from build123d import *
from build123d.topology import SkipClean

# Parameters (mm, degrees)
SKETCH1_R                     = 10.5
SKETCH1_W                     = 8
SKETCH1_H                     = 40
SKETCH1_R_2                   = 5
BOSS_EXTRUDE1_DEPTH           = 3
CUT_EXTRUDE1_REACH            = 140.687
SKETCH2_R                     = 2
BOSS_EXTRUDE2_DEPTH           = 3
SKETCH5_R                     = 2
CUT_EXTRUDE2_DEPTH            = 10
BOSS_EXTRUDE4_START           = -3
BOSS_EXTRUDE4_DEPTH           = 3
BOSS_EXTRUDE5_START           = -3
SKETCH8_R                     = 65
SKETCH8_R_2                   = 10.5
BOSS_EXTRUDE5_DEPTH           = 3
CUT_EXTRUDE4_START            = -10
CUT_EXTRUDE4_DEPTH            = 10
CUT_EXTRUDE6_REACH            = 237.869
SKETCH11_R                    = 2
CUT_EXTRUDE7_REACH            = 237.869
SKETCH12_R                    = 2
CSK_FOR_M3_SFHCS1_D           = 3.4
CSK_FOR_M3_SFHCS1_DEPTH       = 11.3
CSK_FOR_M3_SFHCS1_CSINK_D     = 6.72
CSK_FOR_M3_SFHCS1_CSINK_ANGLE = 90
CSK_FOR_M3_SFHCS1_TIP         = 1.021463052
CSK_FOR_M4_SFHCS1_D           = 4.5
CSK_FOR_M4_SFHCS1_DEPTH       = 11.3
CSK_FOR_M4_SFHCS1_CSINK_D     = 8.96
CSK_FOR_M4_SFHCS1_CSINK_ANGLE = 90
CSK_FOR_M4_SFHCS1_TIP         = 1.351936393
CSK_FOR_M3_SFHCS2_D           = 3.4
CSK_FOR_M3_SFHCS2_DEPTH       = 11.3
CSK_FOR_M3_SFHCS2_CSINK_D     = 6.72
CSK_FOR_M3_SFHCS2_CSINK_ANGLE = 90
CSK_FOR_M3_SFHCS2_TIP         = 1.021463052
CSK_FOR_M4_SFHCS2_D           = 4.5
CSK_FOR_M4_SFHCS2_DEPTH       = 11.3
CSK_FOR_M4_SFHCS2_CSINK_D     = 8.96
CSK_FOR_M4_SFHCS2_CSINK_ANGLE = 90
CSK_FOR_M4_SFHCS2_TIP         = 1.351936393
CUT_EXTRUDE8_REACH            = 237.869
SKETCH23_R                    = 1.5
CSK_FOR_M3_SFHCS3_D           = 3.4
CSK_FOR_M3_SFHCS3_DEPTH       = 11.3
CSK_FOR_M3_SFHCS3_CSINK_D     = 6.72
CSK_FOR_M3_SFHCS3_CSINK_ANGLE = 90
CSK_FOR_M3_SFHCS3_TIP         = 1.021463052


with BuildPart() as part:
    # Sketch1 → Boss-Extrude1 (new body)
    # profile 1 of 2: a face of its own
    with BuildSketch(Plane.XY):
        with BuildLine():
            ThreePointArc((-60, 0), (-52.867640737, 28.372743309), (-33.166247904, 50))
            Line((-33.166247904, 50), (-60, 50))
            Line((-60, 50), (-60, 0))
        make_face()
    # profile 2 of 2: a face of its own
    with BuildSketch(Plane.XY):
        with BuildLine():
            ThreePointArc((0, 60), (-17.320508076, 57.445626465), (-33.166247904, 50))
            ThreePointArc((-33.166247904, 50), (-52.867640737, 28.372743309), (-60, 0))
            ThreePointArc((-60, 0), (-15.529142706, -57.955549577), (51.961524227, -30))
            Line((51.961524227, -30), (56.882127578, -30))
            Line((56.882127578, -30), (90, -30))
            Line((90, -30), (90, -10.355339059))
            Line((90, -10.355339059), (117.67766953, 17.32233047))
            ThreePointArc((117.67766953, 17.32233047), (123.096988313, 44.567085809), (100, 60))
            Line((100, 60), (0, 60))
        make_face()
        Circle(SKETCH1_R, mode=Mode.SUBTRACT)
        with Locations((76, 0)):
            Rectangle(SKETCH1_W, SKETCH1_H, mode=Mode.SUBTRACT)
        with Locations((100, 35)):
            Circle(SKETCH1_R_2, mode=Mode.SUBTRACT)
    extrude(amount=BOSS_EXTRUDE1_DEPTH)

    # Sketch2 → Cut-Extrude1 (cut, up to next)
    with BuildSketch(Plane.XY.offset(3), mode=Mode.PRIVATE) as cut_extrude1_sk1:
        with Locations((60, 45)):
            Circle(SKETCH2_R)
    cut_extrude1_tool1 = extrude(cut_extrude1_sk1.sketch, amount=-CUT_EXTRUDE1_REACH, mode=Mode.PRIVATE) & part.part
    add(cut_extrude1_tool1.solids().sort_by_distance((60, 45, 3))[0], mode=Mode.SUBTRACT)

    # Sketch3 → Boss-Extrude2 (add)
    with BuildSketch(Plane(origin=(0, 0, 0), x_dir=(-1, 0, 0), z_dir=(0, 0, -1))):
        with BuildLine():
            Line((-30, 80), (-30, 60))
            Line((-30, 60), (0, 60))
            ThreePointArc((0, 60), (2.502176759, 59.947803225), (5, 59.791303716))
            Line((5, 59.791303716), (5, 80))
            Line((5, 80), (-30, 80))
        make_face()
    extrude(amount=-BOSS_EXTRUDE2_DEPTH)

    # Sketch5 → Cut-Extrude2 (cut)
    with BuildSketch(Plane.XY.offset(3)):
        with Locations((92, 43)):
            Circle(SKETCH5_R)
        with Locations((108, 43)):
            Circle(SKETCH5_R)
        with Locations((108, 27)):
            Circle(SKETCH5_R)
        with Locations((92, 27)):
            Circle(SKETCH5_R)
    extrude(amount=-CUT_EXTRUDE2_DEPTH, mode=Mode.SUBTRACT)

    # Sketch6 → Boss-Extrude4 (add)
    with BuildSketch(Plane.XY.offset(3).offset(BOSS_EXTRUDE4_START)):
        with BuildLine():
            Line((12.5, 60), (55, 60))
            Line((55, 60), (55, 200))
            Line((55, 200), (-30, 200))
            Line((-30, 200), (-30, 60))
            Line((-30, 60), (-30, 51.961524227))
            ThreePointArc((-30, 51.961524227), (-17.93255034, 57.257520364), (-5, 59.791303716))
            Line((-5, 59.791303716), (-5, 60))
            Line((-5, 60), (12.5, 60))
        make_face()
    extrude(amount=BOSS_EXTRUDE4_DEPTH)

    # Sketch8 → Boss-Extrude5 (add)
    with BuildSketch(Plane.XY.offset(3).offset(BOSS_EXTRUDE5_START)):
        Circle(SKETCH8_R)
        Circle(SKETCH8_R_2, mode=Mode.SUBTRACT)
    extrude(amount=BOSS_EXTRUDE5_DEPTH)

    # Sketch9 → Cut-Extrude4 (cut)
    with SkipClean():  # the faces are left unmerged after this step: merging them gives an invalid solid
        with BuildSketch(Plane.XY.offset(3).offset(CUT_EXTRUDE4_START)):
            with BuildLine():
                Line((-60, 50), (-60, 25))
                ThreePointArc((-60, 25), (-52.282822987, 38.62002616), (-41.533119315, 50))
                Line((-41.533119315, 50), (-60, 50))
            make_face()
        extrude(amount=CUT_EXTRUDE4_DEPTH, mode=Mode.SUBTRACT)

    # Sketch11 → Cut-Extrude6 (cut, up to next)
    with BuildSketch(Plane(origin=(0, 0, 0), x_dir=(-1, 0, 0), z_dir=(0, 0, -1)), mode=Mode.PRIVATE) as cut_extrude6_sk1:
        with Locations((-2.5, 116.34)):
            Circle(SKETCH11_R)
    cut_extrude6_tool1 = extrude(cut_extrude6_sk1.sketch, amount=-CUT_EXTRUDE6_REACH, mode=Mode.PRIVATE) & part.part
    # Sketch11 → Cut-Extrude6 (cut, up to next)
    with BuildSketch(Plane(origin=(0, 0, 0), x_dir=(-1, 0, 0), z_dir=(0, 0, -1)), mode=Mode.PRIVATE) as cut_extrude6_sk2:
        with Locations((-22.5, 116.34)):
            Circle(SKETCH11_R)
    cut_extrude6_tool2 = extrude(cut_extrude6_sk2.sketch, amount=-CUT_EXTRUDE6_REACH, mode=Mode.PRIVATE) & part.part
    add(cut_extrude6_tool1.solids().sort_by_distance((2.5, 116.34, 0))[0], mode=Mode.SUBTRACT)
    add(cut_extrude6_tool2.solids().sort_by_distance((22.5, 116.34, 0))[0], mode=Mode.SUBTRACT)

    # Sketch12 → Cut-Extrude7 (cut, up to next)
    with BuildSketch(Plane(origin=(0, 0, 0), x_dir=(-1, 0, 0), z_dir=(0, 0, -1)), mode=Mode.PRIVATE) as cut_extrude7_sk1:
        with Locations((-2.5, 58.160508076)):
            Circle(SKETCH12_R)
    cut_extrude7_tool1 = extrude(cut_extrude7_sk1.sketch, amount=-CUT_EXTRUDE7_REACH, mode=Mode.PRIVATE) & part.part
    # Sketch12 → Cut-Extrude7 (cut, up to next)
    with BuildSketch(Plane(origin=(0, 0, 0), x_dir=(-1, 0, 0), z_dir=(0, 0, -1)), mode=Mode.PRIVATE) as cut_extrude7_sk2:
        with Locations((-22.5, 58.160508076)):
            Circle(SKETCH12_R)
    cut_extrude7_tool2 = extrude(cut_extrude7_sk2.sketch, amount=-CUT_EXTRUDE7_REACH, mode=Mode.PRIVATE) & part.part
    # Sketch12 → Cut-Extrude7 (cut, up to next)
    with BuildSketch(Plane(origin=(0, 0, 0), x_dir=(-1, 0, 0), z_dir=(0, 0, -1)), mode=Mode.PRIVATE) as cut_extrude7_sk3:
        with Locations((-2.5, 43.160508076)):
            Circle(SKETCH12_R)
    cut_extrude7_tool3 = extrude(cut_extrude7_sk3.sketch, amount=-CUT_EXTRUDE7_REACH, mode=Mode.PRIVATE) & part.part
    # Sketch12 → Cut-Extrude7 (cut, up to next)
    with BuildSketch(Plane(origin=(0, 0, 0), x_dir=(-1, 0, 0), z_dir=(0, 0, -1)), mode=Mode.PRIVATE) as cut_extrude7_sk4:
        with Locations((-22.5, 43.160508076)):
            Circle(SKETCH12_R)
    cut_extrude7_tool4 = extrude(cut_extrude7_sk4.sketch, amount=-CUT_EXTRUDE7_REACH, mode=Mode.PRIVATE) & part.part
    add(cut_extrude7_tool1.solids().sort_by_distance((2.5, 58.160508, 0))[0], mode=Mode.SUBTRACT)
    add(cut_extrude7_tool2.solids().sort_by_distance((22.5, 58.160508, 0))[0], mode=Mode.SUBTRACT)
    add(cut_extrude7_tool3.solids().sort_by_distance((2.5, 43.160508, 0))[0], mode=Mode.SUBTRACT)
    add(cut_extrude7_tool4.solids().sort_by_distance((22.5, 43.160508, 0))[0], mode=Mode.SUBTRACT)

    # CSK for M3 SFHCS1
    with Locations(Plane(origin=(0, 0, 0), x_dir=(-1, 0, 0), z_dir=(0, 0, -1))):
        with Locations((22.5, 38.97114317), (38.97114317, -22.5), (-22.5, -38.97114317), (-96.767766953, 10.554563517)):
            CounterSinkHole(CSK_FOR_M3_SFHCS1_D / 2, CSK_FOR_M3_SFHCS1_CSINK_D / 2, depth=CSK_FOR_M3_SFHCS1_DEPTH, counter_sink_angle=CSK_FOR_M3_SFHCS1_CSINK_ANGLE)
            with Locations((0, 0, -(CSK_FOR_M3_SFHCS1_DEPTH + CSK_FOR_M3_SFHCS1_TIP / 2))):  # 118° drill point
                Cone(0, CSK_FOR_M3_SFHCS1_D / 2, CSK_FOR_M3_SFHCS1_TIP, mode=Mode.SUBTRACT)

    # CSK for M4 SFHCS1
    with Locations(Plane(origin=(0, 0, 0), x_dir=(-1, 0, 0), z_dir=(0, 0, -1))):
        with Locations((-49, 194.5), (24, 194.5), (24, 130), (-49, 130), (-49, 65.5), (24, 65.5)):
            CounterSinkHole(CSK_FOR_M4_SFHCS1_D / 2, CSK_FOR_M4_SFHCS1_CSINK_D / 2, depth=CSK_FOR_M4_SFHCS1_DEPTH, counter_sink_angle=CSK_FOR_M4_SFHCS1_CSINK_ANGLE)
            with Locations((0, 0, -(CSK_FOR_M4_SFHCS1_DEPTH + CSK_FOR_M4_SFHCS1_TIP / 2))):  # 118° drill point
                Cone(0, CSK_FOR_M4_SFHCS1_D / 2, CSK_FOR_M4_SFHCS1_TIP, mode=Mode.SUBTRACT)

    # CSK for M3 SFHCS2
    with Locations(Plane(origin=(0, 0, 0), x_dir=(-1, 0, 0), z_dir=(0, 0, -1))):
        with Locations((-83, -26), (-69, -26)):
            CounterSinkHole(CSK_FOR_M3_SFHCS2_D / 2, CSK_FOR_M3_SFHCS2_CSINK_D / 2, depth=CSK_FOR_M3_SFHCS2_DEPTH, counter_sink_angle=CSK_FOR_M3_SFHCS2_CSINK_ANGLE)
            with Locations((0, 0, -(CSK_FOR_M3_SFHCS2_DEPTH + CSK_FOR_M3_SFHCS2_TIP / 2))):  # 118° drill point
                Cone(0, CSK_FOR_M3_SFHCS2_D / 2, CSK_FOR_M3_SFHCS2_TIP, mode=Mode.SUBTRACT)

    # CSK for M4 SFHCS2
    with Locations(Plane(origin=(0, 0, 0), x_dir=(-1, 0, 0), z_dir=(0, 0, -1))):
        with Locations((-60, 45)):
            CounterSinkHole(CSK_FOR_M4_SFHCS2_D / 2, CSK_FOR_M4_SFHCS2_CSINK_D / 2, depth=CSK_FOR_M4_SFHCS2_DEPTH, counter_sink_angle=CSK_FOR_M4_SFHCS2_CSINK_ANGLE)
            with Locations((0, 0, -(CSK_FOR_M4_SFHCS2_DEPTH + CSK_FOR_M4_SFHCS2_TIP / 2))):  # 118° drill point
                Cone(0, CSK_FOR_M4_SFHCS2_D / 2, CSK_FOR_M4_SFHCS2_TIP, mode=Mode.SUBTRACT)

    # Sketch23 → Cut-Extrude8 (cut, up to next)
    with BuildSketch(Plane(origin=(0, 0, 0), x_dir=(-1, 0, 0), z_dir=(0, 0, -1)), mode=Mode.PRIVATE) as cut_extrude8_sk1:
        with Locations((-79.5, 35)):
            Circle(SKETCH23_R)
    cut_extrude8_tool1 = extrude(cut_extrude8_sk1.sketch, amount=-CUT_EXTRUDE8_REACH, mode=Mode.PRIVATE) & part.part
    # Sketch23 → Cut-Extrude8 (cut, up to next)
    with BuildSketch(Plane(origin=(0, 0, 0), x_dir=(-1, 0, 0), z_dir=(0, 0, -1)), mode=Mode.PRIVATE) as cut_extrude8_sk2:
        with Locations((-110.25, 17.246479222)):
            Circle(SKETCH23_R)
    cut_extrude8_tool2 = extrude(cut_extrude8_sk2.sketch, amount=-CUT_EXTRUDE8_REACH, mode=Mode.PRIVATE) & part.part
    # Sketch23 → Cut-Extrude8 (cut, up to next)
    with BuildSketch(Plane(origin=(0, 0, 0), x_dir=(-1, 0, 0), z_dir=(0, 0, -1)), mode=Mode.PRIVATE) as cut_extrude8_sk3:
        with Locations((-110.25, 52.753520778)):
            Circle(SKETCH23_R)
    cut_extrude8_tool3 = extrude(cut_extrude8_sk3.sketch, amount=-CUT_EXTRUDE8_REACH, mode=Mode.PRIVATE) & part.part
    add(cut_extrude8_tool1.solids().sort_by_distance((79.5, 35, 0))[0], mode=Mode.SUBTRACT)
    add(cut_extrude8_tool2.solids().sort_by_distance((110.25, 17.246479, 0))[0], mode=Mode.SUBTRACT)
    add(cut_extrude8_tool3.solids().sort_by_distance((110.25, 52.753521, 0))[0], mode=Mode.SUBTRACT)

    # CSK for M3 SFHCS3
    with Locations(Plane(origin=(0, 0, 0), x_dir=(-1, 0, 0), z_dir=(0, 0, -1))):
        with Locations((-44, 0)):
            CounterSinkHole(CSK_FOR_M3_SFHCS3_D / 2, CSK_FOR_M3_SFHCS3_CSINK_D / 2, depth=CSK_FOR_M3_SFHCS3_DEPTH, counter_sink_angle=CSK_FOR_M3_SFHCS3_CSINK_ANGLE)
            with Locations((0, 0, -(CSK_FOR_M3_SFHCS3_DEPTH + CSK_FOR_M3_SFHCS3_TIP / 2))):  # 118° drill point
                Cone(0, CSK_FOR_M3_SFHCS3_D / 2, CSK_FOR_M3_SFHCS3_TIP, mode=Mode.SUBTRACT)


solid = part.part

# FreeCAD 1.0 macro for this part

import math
import FreeCAD as App
import Part
import Sketcher
from FreeCAD import Vector
Q = App.Units.Quantity

doc = App.newDocument("Part")
params = doc.addObject("Spreadsheet::Sheet", "Params")
for row, (alias, value) in enumerate([
    ("sketch1_diameter", "10 mm"),
    ("sketch1_diameter2", "21 mm"),
    ("sketch1_radius", "60 mm"),
    ("sketch1_radius2", "25 mm"),
    ("sketch1_width", "100 mm"),
    ("pad1_length", "3 mm"),
    ("sketch2_diameter", "4 mm"),
    ("sketch3_radius", "60 mm"),
    ("sketch3_width", "30 mm"),
    ("sketch3_width2", "35 mm"),
    ("sketch3_height", "20 mm"),
    ("pad2_length", "3 mm"),
    ("sketch4_diameter", "4 mm"),
    ("pocket2_length", "10 mm"),
    ("sketch5_radius", "60 mm"),
    ("sketch5_width", "85 mm"),
    ("sketch5_width2", "60 mm"),
    ("sketch5_height", "140 mm"),
    ("pad3_length", "3 mm"),
    ("sketch6_diameter", "130 mm"),
    ("sketch6_diameter2", "21 mm"),
    ("pad4_length", "3 mm"),
    ("sketch7_radius", "65 mm"),
    ("sketch7_height", "25 mm"),
    ("pocket3_length", "10 mm"),
    ("sketch8_diameter", "4 mm"),
    ("sketch9_diameter", "4 mm"),
    ("sketch10_diameter", "4 mm"),
    ("sketch11_diameter", "4 mm"),
    ("sketch12_diameter", "4 mm"),
    ("sketch13_diameter", "4 mm"),
    ("sketch14_diameter", "3.4 mm"),
    ("hole_diameter", "3.4 mm"),
    ("hole_depth", "11.3 mm"),
    ("hole_csink_diameter", "6.72 mm"),
    ("sketch15_diameter", "4.5 mm"),
    ("hole2_diameter", "4.5 mm"),
    ("hole2_depth", "11.3 mm"),
    ("hole2_csink_diameter", "8.96 mm"),
    ("sketch16_diameter", "3.4 mm"),
    ("hole3_diameter", "3.4 mm"),
    ("hole3_depth", "11.3 mm"),
    ("hole3_csink_diameter", "6.72 mm"),
    ("sketch17_diameter", "4.5 mm"),
    ("hole4_diameter", "4.5 mm"),
    ("hole4_depth", "11.3 mm"),
    ("hole4_csink_diameter", "8.96 mm"),
    ("sketch18_diameter", "3 mm"),
    ("sketch19_diameter", "3 mm"),
    ("sketch20_diameter", "3 mm"),
    ("sketch21_diameter", "3.4 mm"),
    ("hole5_diameter", "3.4 mm"),
    ("hole5_depth", "11.3 mm"),
    ("hole5_csink_diameter", "6.72 mm"),
], start=1):
    params.set(f"A{row}", alias)
    params.set(f"B{row}", "=" + value)
    params.setAlias(f"B{row}", alias)

body = doc.addObject("PartDesign::Body", "Body")

# Sketch on XY plane
sketch1 = body.newObject("Sketcher::SketchObject", "Sketch")
sketch1.AttachmentSupport = (doc.getObject("XY_Plane"), [""])
sketch1.MapMode = "FlatFace"
sketch1.addGeometry([
    Part.LineSegment(Vector(-33, 50, 0), Vector(-60, 50, 0)),  # 0
    Part.LineSegment(Vector(-60, 50, 0), Vector(-60, 0, 0)),  # 1
    Part.ArcOfCircle(Part.Circle(Vector(0, 0, 0), Vector(0, 0, 1), 60), math.radians(180), math.radians(330)),  # 2
    Part.LineSegment(Vector(52, -30, 0), Vector(90, -30, 0)),  # 3
    Part.LineSegment(Vector(90, -30, 0), Vector(90, -10, 0)),  # 4
    Part.LineSegment(Vector(90, -10, 0), Vector(118, 17, 0)),  # 5
    Part.ArcOfCircle(Part.Circle(Vector(100, 35, 0), Vector(0, 0, 1), 25), math.radians(-45), math.radians(90)),  # 6
    Part.LineSegment(Vector(100, 60, 0), Vector(0, 60, 0)),  # 7
    Part.ArcOfCircle(Part.Circle(Vector(0, 0, 0), Vector(0, 0, 1), 60), math.radians(90), math.radians(124)),  # 8
    Part.Circle(Vector(100, 35, 0), Vector(0, 0, 1), 5),  # 9
    Part.Circle(Vector(0, 0, 0), Vector(0, 0, 1), 10),  # 10
    Part.LineSegment(Vector(80, -20, 0), Vector(72, -20, 0)),  # 11
    Part.LineSegment(Vector(72, -20, 0), Vector(72, 20, 0)),  # 12
    Part.LineSegment(Vector(72, 20, 0), Vector(80, 20, 0)),  # 13
    Part.LineSegment(Vector(80, 20, 0), Vector(80, -20, 0)),  # 14
], False)
sketch1.addConstraint([
    Sketcher.Constraint("Coincident", 0, 2, 1, 1),
    Sketcher.Constraint("Tangent", 1, 2, 2, 1),
    Sketcher.Constraint("Coincident", 2, 2, 3, 1),
    Sketcher.Constraint("Coincident", 3, 2, 4, 1),
    Sketcher.Constraint("Coincident", 4, 2, 5, 1),
    Sketcher.Constraint("Tangent", 5, 2, 6, 1),
    Sketcher.Constraint("Tangent", 6, 2, 7, 1),
    Sketcher.Constraint("Tangent", 7, 2, 8, 1),
    Sketcher.Constraint("Coincident", 8, 2, 0, 1),
    Sketcher.Constraint("Coincident", 11, 2, 12, 1),
    Sketcher.Constraint("Coincident", 12, 2, 13, 1),
    Sketcher.Constraint("Coincident", 13, 2, 14, 1),
    Sketcher.Constraint("Coincident", 14, 2, 11, 1),
    Sketcher.Constraint("Horizontal", 0),
    Sketcher.Constraint("Vertical", 1),
    Sketcher.Constraint("Horizontal", 3),
    Sketcher.Constraint("Vertical", 4),
    Sketcher.Constraint("Horizontal", 7),
    Sketcher.Constraint("Horizontal", 11),
    Sketcher.Constraint("Vertical", 12),
    Sketcher.Constraint("Horizontal", 13),
    Sketcher.Constraint("Vertical", 14),
    Sketcher.Constraint("Coincident", 2, 3, -1, 1),
    Sketcher.Constraint("Coincident", 8, 3, -1, 1),
    Sketcher.Constraint("Coincident", 10, 3, -1, 1),
    Sketcher.Constraint("Coincident", 9, 3, 6, 3),
    Sketcher.Constraint("Equal", 2, 8),
    Sketcher.Constraint("Diameter", 9, Q("10 mm")),
    Sketcher.Constraint("Diameter", 10, Q("21 mm")),
    Sketcher.Constraint("Radius", 2, Q("60 mm")),
    Sketcher.Constraint("Radius", 6, Q("25 mm")),
    Sketcher.Constraint("DistanceX", 7, 2, 7, 1, Q("100 mm")),
    Sketcher.Constraint("DistanceX", 11, 2, 11, 1, Q("8 mm")),
    Sketcher.Constraint("DistanceY", 1, 2, 1, 1, Q("50 mm")),
    Sketcher.Constraint("DistanceY", 12, 1, 12, 2, Q("40 mm")),
    Sketcher.Constraint("Angle", 5, Q("45 deg")),
    Sketcher.Constraint("DistanceY", 2, 2, -1, 1, Q("30 mm")),
    Sketcher.Constraint("DistanceX", -1, 1, 3, 2, Q("90 mm")),
    Sketcher.Constraint("DistanceX", -1, 1, 11, 2, Q("72 mm")),
    Sketcher.Constraint("DistanceY", 11, 2, -1, 1, Q("20 mm")),
])
sketch1.setExpression("Constraints[27]", "Params.sketch1_diameter")
sketch1.setExpression("Constraints[28]", "Params.sketch1_diameter2")
sketch1.setExpression("Constraints[29]", "Params.sketch1_radius")
sketch1.setExpression("Constraints[30]", "Params.sketch1_radius2")
sketch1.setExpression("Constraints[31]", "Params.sketch1_width")
pad1 = body.newObject("PartDesign::Pad", "Pad")
pad1.Profile = sketch1
pad1.setExpression("Length", "Params.pad1_length")

# Sketch on XY plane
sketch2 = body.newObject("Sketcher::SketchObject", "Sketch001")
sketch2.AttachmentSupport = (doc.getObject("XY_Plane"), [""])
sketch2.MapMode = "FlatFace"
sketch2.AttachmentOffset = App.Placement(Vector(0, 0, 3), App.Rotation())
sketch2.addGeometry(Part.Circle(Vector(60, 45, 0), Vector(0, 0, 1), 2), False)
sketch2.addConstraint([
    Sketcher.Constraint("Diameter", 0, Q("4 mm")),
    Sketcher.Constraint("DistanceX", -1, 1, 0, 3, Q("60 mm")),
    Sketcher.Constraint("DistanceY", -1, 1, 0, 3, Q("45 mm")),
])
sketch2.setExpression("Constraints[0]", "Params.sketch2_diameter")
pocket1 = body.newObject("PartDesign::Pocket", "Pocket")
pocket1.Profile = sketch2
pocket1.Type = "UpToFirst"

# Sketch on XY plane
sketch3 = body.newObject("Sketcher::SketchObject", "Sketch002")
sketch3.AttachmentSupport = (doc.getObject("XY_Plane"), [""])
sketch3.MapMode = "FlatFace"
sketch3.addGeometry([
    Part.LineSegment(Vector(30, 80, 0), Vector(30, 60, 0)),  # 0
    Part.LineSegment(Vector(30, 60, 0), Vector(0, 60, 0)),  # 1
    Part.ArcOfCircle(Part.Circle(Vector(0, 0, 0), Vector(0, 0, 1), 60), math.radians(90), math.radians(94.78)),  # 2
    Part.LineSegment(Vector(-5, 60, 0), Vector(-5, 80, 0)),  # 3
    Part.LineSegment(Vector(-5, 80, 0), Vector(30, 80, 0)),  # 4
], False)
sketch3.addConstraint([
    Sketcher.Constraint("Coincident", 0, 2, 1, 1),
    Sketcher.Constraint("Tangent", 1, 2, 2, 1),
    Sketcher.Constraint("Coincident", 2, 2, 3, 1),
    Sketcher.Constraint("Coincident", 3, 2, 4, 1),
    Sketcher.Constraint("Coincident", 4, 2, 0, 1),
    Sketcher.Constraint("Vertical", 0),
    Sketcher.Constraint("Horizontal", 1),
    Sketcher.Constraint("Vertical", 3),
    Sketcher.Constraint("Horizontal", 4),
    Sketcher.Constraint("Coincident", 2, 3, -1, 1),
    Sketcher.Constraint("Radius", 2, Q("60 mm")),
    Sketcher.Constraint("DistanceX", 1, 2, 1, 1, Q("30 mm")),
    Sketcher.Constraint("DistanceX", 4, 1, 4, 2, Q("35 mm")),
    Sketcher.Constraint("DistanceY", 0, 2, 0, 1, Q("20 mm")),
])
sketch3.setExpression("Constraints[10]", "Params.sketch3_radius")
sketch3.setExpression("Constraints[11]", "Params.sketch3_width")
sketch3.setExpression("Constraints[12]", "Params.sketch3_width2")
sketch3.setExpression("Constraints[13]", "Params.sketch3_height")
pad2 = body.newObject("PartDesign::Pad", "Pad001")
pad2.Profile = sketch3
pad2.setExpression("Length", "Params.pad2_length")

# Sketch on XY plane
sketch4 = body.newObject("Sketcher::SketchObject", "Sketch003")
sketch4.AttachmentSupport = (doc.getObject("XY_Plane"), [""])
sketch4.MapMode = "FlatFace"
sketch4.AttachmentOffset = App.Placement(Vector(0, 0, 3), App.Rotation())
sketch4.addGeometry([
    Part.Circle(Vector(92, 43, 0), Vector(0, 0, 1), 2),
    Part.Circle(Vector(108, 43, 0), Vector(0, 0, 1), 2),
    Part.Circle(Vector(108, 27, 0), Vector(0, 0, 1), 2),
    Part.Circle(Vector(92, 27, 0), Vector(0, 0, 1), 2),
], False)
sketch4.addConstraint([
    Sketcher.Constraint("Equal", 0, 1),
    Sketcher.Constraint("Equal", 1, 2),
    Sketcher.Constraint("Equal", 2, 3),
    Sketcher.Constraint("Horizontal", 0, 3, 1, 3),
    Sketcher.Constraint("Horizontal", 2, 3, 3, 3),
    Sketcher.Constraint("Vertical", 1, 3, 2, 3),
    Sketcher.Constraint("Vertical", 0, 3, 3, 3),
    Sketcher.Constraint("Diameter", 0, Q("4 mm")),
    Sketcher.Constraint("DistanceX", -1, 1, 0, 3, Q("92 mm")),
    Sketcher.Constraint("DistanceY", -1, 1, 0, 3, Q("43 mm")),
    Sketcher.Constraint("DistanceX", -1, 1, 1, 3, Q("108 mm")),
    Sketcher.Constraint("DistanceY", -1, 1, 2, 3, Q("27 mm")),
])
sketch4.setExpression("Constraints[7]", "Params.sketch4_diameter")
pocket2 = body.newObject("PartDesign::Pocket", "Pocket001")
pocket2.Profile = sketch4
pocket2.setExpression("Length", "Params.pocket2_length")

# Sketch on XY plane
sketch5 = body.newObject("Sketcher::SketchObject", "Sketch004")
sketch5.AttachmentSupport = (doc.getObject("XY_Plane"), [""])
sketch5.MapMode = "FlatFace"
sketch5.addGeometry([
    Part.LineSegment(Vector(55, 60, 0), Vector(55, 200, 0)),  # 0
    Part.LineSegment(Vector(55, 200, 0), Vector(-30, 200, 0)),  # 1
    Part.LineSegment(Vector(-30, 200, 0), Vector(-30, 51.96, 0)),  # 2
    Part.ArcOfCircle(Part.Circle(Vector(0, 0, 0), Vector(0, 0, 1), 60), math.radians(95), math.radians(120)),  # 3
    Part.LineSegment(Vector(-5, 59.79, 0), Vector(-5, 60, 0)),  # 4
    Part.LineSegment(Vector(-5, 60, 0), Vector(55, 60, 0)),  # 5
], False)
sketch5.addConstraint([
    Sketcher.Constraint("Coincident", 0, 2, 1, 1),
    Sketcher.Constraint("Coincident", 1, 2, 2, 1),
    Sketcher.Constraint("Coincident", 2, 2, 3, 2),
    Sketcher.Constraint("Coincident", 3, 1, 4, 1),
    Sketcher.Constraint("Coincident", 4, 2, 5, 1),
    Sketcher.Constraint("Coincident", 5, 2, 0, 1),
    Sketcher.Constraint("Vertical", 0),
    Sketcher.Constraint("Horizontal", 1),
    Sketcher.Constraint("Vertical", 2),
    Sketcher.Constraint("Vertical", 4),
    Sketcher.Constraint("Horizontal", 5),
    Sketcher.Constraint("Coincident", 3, 3, -1, 1),
    Sketcher.Constraint("Radius", 3, Q("60 mm")),
    Sketcher.Constraint("DistanceX", 1, 2, 1, 1, Q("85 mm")),
    Sketcher.Constraint("DistanceX", 5, 1, 5, 2, Q("60 mm")),
    Sketcher.Constraint("DistanceY", 0, 1, 0, 2, Q("140 mm")),
    Sketcher.Constraint("DistanceX", -1, 1, 0, 2, Q("55 mm")),
    Sketcher.Constraint("DistanceY", -1, 1, 0, 2, Q("200 mm")),
])
sketch5.setExpression("Constraints[12]", "Params.sketch5_radius")
sketch5.setExpression("Constraints[13]", "Params.sketch5_width")
sketch5.setExpression("Constraints[14]", "Params.sketch5_width2")
sketch5.setExpression("Constraints[15]", "Params.sketch5_height")
pad3 = body.newObject("PartDesign::Pad", "Pad002")
pad3.Profile = sketch5
pad3.setExpression("Length", "Params.pad3_length")

# Sketch on XY plane
sketch6 = body.newObject("Sketcher::SketchObject", "Sketch005")
sketch6.AttachmentSupport = (doc.getObject("XY_Plane"), [""])
sketch6.MapMode = "FlatFace"
sketch6.addGeometry([
    Part.Circle(Vector(0, 0, 0), Vector(0, 0, 1), 65),
    Part.Circle(Vector(0, 0, 0), Vector(0, 0, 1), 10),
], False)
sketch6.addConstraint([
    Sketcher.Constraint("Coincident", 0, 3, -1, 1),
    Sketcher.Constraint("Coincident", 1, 3, -1, 1),
    Sketcher.Constraint("Diameter", 0, Q("130 mm")),
    Sketcher.Constraint("Diameter", 1, Q("21 mm")),
])
sketch6.setExpression("Constraints[2]", "Params.sketch6_diameter")
sketch6.setExpression("Constraints[3]", "Params.sketch6_diameter2")
pad4 = body.newObject("PartDesign::Pad", "Pad003")
pad4.Profile = sketch6
pad4.setExpression("Length", "Params.pad4_length")

# Sketch on XY plane
sketch7 = body.newObject("Sketcher::SketchObject", "Sketch006")
sketch7.AttachmentSupport = (doc.getObject("XY_Plane"), [""])
sketch7.MapMode = "FlatFace"
sketch7.AttachmentOffset = App.Placement(Vector(0, 0, -7), App.Rotation())
sketch7.addGeometry([
    Part.LineSegment(Vector(-60, 50, 0), Vector(-60, 25, 0)),
    Part.ArcOfCircle(Part.Circle(Vector(0, 0, 0), Vector(0, 0, 1), 65), math.radians(130), math.radians(157)),
    Part.LineSegment(Vector(-42, 50, 0), Vector(-60, 50, 0)),
], False)
sketch7.addConstraint([
    Sketcher.Constraint("Coincident", 0, 2, 1, 2),
    Sketcher.Constraint("Coincident", 1, 1, 2, 1),
    Sketcher.Constraint("Coincident", 2, 2, 0, 1),
    Sketcher.Constraint("Vertical", 0),
    Sketcher.Constraint("Horizontal", 2),
    Sketcher.Constraint("Coincident", 1, 3, -1, 1),
    Sketcher.Constraint("Radius", 1, Q("65 mm")),
    Sketcher.Constraint("DistanceY", 0, 2, 0, 1, Q("25 mm")),
    Sketcher.Constraint("DistanceX", 0, 2, -1, 1, Q("60 mm")),
])
sketch7.setExpression("Constraints[6]", "Params.sketch7_radius")
sketch7.setExpression("Constraints[7]", "Params.sketch7_height")
pocket3 = body.newObject("PartDesign::Pocket", "Pocket002")
pocket3.Profile = sketch7
pocket3.setExpression("Length", "Params.pocket3_length")
pocket3.Reversed = True

# Sketch on XY plane
sketch8 = body.newObject("Sketcher::SketchObject", "Sketch007")
sketch8.AttachmentSupport = (doc.getObject("XY_Plane"), [""])
sketch8.MapMode = "FlatFace"
sketch8.addGeometry(Part.Circle(Vector(2.5, 116.3, 0), Vector(0, 0, 1), 2), False)
sketch8.addConstraint([
    Sketcher.Constraint("Diameter", 0, Q("4 mm")),
    Sketcher.Constraint("DistanceX", -1, 1, 0, 3, Q("2.5 mm")),
    Sketcher.Constraint("DistanceY", -1, 1, 0, 3, Q("116.34 mm")),
])
sketch8.setExpression("Constraints[0]", "Params.sketch8_diameter")
pocket4 = body.newObject("PartDesign::Pocket", "Pocket003")
pocket4.Profile = sketch8
pocket4.Type = "UpToFirst"
pocket4.Reversed = True

# Sketch on XY plane
sketch9 = body.newObject("Sketcher::SketchObject", "Sketch008")
sketch9.AttachmentSupport = (doc.getObject("XY_Plane"), [""])
sketch9.MapMode = "FlatFace"
sketch9.addGeometry(Part.Circle(Vector(22.5, 116.3, 0), Vector(0, 0, 1), 2), False)
sketch9.addConstraint([
    Sketcher.Constraint("Diameter", 0, Q("4 mm")),
    Sketcher.Constraint("DistanceX", -1, 1, 0, 3, Q("22.5 mm")),
    Sketcher.Constraint("DistanceY", -1, 1, 0, 3, Q("116.34 mm")),
])
sketch9.setExpression("Constraints[0]", "Params.sketch9_diameter")
pocket5 = body.newObject("PartDesign::Pocket", "Pocket004")
pocket5.Profile = sketch9
pocket5.Type = "UpToFirst"
pocket5.Reversed = True

# Sketch on XY plane
sketch10 = body.newObject("Sketcher::SketchObject", "Sketch009")
sketch10.AttachmentSupport = (doc.getObject("XY_Plane"), [""])
sketch10.MapMode = "FlatFace"
sketch10.addGeometry(Part.Circle(Vector(2.5, 58.2, 0), Vector(0, 0, 1), 2), False)
sketch10.addConstraint([
    Sketcher.Constraint("Diameter", 0, Q("4 mm")),
    Sketcher.Constraint("DistanceX", -1, 1, 0, 3, Q("2.5 mm")),
    Sketcher.Constraint("DistanceY", -1, 1, 0, 3, Q("58.160508 mm")),
])
sketch10.setExpression("Constraints[0]", "Params.sketch10_diameter")
pocket6 = body.newObject("PartDesign::Pocket", "Pocket005")
pocket6.Profile = sketch10
pocket6.Type = "UpToFirst"
pocket6.Reversed = True

# Sketch on XY plane
sketch11 = body.newObject("Sketcher::SketchObject", "Sketch010")
sketch11.AttachmentSupport = (doc.getObject("XY_Plane"), [""])
sketch11.MapMode = "FlatFace"
sketch11.addGeometry(Part.Circle(Vector(22.5, 58.2, 0), Vector(0, 0, 1), 2), False)
sketch11.addConstraint([
    Sketcher.Constraint("Diameter", 0, Q("4 mm")),
    Sketcher.Constraint("DistanceX", -1, 1, 0, 3, Q("22.5 mm")),
    Sketcher.Constraint("DistanceY", -1, 1, 0, 3, Q("58.160508 mm")),
])
sketch11.setExpression("Constraints[0]", "Params.sketch11_diameter")
pocket7 = body.newObject("PartDesign::Pocket", "Pocket006")
pocket7.Profile = sketch11
pocket7.Type = "UpToFirst"
pocket7.Reversed = True

# Sketch on XY plane
sketch12 = body.newObject("Sketcher::SketchObject", "Sketch011")
sketch12.AttachmentSupport = (doc.getObject("XY_Plane"), [""])
sketch12.MapMode = "FlatFace"
sketch12.addGeometry(Part.Circle(Vector(2.5, 43.2, 0), Vector(0, 0, 1), 2), False)
sketch12.addConstraint([
    Sketcher.Constraint("Diameter", 0, Q("4 mm")),
    Sketcher.Constraint("DistanceX", -1, 1, 0, 3, Q("2.5 mm")),
    Sketcher.Constraint("DistanceY", -1, 1, 0, 3, Q("43.160508 mm")),
])
sketch12.setExpression("Constraints[0]", "Params.sketch12_diameter")
pocket8 = body.newObject("PartDesign::Pocket", "Pocket007")
pocket8.Profile = sketch12
pocket8.Type = "UpToFirst"
pocket8.Reversed = True

# Sketch on XY plane
sketch13 = body.newObject("Sketcher::SketchObject", "Sketch012")
sketch13.AttachmentSupport = (doc.getObject("XY_Plane"), [""])
sketch13.MapMode = "FlatFace"
sketch13.addGeometry(Part.Circle(Vector(22.5, 43.2, 0), Vector(0, 0, 1), 2), False)
sketch13.addConstraint([
    Sketcher.Constraint("Diameter", 0, Q("4 mm")),
    Sketcher.Constraint("DistanceX", -1, 1, 0, 3, Q("22.5 mm")),
    Sketcher.Constraint("DistanceY", -1, 1, 0, 3, Q("43.160508 mm")),
])
sketch13.setExpression("Constraints[0]", "Params.sketch13_diameter")
pocket9 = body.newObject("PartDesign::Pocket", "Pocket008")
pocket9.Profile = sketch13
pocket9.Type = "UpToFirst"
pocket9.Reversed = True

# Sketch on XY plane
sketch14 = body.newObject("Sketcher::SketchObject", "Sketch013")
sketch14.AttachmentSupport = (doc.getObject("XY_Plane"), [""])
sketch14.MapMode = "FlatFace"
sketch14.addGeometry([
    Part.Circle(Vector(-22.5, 39, 0), Vector(0, 0, 1), 1.7),
    Part.Circle(Vector(-39, -22.5, 0), Vector(0, 0, 1), 1.7),
    Part.Circle(Vector(22.5, -39, 0), Vector(0, 0, 1), 1.7),
    Part.Circle(Vector(96.8, 10.6, 0), Vector(0, 0, 1), 1.7),
], False)
sketch14.addConstraint([
    Sketcher.Constraint("Equal", 0, 1),
    Sketcher.Constraint("Equal", 1, 2),
    Sketcher.Constraint("Equal", 2, 3),
    Sketcher.Constraint("Symmetric", 0, 3, 2, 3, -1, 1),
    Sketcher.Constraint("Diameter", 0, Q("3.4 mm")),
    Sketcher.Constraint("DistanceX", 0, 3, 2, 3, Q("45 mm")),
    Sketcher.Constraint("DistanceY", 1, 3, -1, 1, Q("22.5 mm")),
    Sketcher.Constraint("DistanceY", 3, 3, 0, 3, Q("28.41658 mm")),
    Sketcher.Constraint("DistanceX", 1, 3, 3, 3, Q("135.73891 mm")),
    Sketcher.Constraint("DistanceY", -1, 1, 0, 3, Q("38.971143 mm")),
    Sketcher.Constraint("DistanceX", 1, 3, -1, 1, Q("38.971143 mm")),
])
sketch14.setExpression("Constraints[4]", "Params.sketch14_diameter")
doc.recompute()
hole = body.newObject("PartDesign::Hole", "Hole")
hole.Profile = sketch14
hole.ThreadType = "None"
hole.setExpression("Diameter", "Params.hole_diameter")
hole.DepthType = "Dimension"
hole.setExpression("Depth", "Params.hole_depth")
hole.DrillPoint = "Angled"
hole.DrillPointAngle = 118
hole.HoleCutType = "Countersink"
hole.setExpression("HoleCutDiameter", "Params.hole_csink_diameter")
hole.HoleCutCountersinkAngle = 90
hole.Reversed = True

# Sketch on XY plane
sketch15 = body.newObject("Sketcher::SketchObject", "Sketch014")
sketch15.AttachmentSupport = (doc.getObject("XY_Plane"), [""])
sketch15.MapMode = "FlatFace"
sketch15.addGeometry([
    Part.Circle(Vector(49, 194.5, 0), Vector(0, 0, 1), 2.2),  # 0
    Part.Circle(Vector(-24, 194.5, 0), Vector(0, 0, 1), 2.2),  # 1
    Part.Circle(Vector(-24, 130, 0), Vector(0, 0, 1), 2.2),  # 2
    Part.Circle(Vector(49, 130, 0), Vector(0, 0, 1), 2.2),  # 3
    Part.Circle(Vector(49, 65.5, 0), Vector(0, 0, 1), 2.2),  # 4
    Part.Circle(Vector(-24, 65.5, 0), Vector(0, 0, 1), 2.2),  # 5
], False)
sketch15.addConstraint([
    Sketcher.Constraint("Equal", 0, 1),
    Sketcher.Constraint("Equal", 1, 2),
    Sketcher.Constraint("Equal", 2, 3),
    Sketcher.Constraint("Equal", 3, 4),
    Sketcher.Constraint("Equal", 4, 5),
    Sketcher.Constraint("Horizontal", 0, 3, 1, 3),
    Sketcher.Constraint("Horizontal", 2, 3, 3, 3),
    Sketcher.Constraint("Horizontal", 4, 3, 5, 3),
    Sketcher.Constraint("Vertical", 1, 3, 2, 3),
    Sketcher.Constraint("Vertical", 0, 3, 3, 3),
    Sketcher.Constraint("Vertical", 3, 3, 4, 3),
    Sketcher.Constraint("Vertical", 2, 3, 5, 3),
    Sketcher.Constraint("Diameter", 0, Q("4.5 mm")),
    Sketcher.Constraint("DistanceX", -1, 1, 0, 3, Q("49 mm")),
    Sketcher.Constraint("DistanceX", 1, 3, -1, 1, Q("24 mm")),
    Sketcher.Constraint("DistanceY", -1, 1, 2, 3, Q("130 mm")),
    Sketcher.Constraint("DistanceY", 4, 3, 0, 3, Q("129 mm")),
    Sketcher.Constraint("DistanceY", -1, 1, 0, 3, Q("194.5 mm")),
])
sketch15.setExpression("Constraints[12]", "Params.sketch15_diameter")
doc.recompute()
hole2 = body.newObject("PartDesign::Hole", "Hole001")
hole2.Profile = sketch15
hole2.ThreadType = "None"
hole2.setExpression("Diameter", "Params.hole2_diameter")
hole2.DepthType = "Dimension"
hole2.setExpression("Depth", "Params.hole2_depth")
hole2.DrillPoint = "Angled"
hole2.DrillPointAngle = 118
hole2.HoleCutType = "Countersink"
hole2.setExpression("HoleCutDiameter", "Params.hole2_csink_diameter")
hole2.HoleCutCountersinkAngle = 90
hole2.Reversed = True

# Sketch on XY plane
sketch16 = body.newObject("Sketcher::SketchObject", "Sketch015")
sketch16.AttachmentSupport = (doc.getObject("XY_Plane"), [""])
sketch16.MapMode = "FlatFace"
sketch16.addGeometry([
    Part.Circle(Vector(83, -26, 0), Vector(0, 0, 1), 1.7),
    Part.Circle(Vector(69, -26, 0), Vector(0, 0, 1), 1.7),
], False)
sketch16.addConstraint([
    Sketcher.Constraint("Equal", 0, 1),
    Sketcher.Constraint("Horizontal", 0, 3, 1, 3),
    Sketcher.Constraint("Diameter", 0, Q("3.4 mm")),
    Sketcher.Constraint("DistanceX", -1, 1, 0, 3, Q("83 mm")),
    Sketcher.Constraint("DistanceY", 0, 3, -1, 1, Q("26 mm")),
    Sketcher.Constraint("DistanceX", -1, 1, 1, 3, Q("69 mm")),
])
sketch16.setExpression("Constraints[2]", "Params.sketch16_diameter")
doc.recompute()
hole3 = body.newObject("PartDesign::Hole", "Hole002")
hole3.Profile = sketch16
hole3.ThreadType = "None"
hole3.setExpression("Diameter", "Params.hole3_diameter")
hole3.DepthType = "Dimension"
hole3.setExpression("Depth", "Params.hole3_depth")
hole3.DrillPoint = "Angled"
hole3.DrillPointAngle = 118
hole3.HoleCutType = "Countersink"
hole3.setExpression("HoleCutDiameter", "Params.hole3_csink_diameter")
hole3.HoleCutCountersinkAngle = 90
hole3.Reversed = True

# Sketch on XY plane
sketch17 = body.newObject("Sketcher::SketchObject", "Sketch016")
sketch17.AttachmentSupport = (doc.getObject("XY_Plane"), [""])
sketch17.MapMode = "FlatFace"
sketch17.addGeometry(Part.Circle(Vector(60, 45, 0), Vector(0, 0, 1), 2.2), False)
sketch17.addConstraint([
    Sketcher.Constraint("Diameter", 0, Q("4.5 mm")),
    Sketcher.Constraint("DistanceX", -1, 1, 0, 3, Q("60 mm")),
    Sketcher.Constraint("DistanceY", -1, 1, 0, 3, Q("45 mm")),
])
sketch17.setExpression("Constraints[0]", "Params.sketch17_diameter")
doc.recompute()
hole4 = body.newObject("PartDesign::Hole", "Hole003")
hole4.Profile = sketch17
hole4.ThreadType = "None"
hole4.setExpression("Diameter", "Params.hole4_diameter")
hole4.DepthType = "Dimension"
hole4.setExpression("Depth", "Params.hole4_depth")
hole4.DrillPoint = "Angled"
hole4.DrillPointAngle = 118
hole4.HoleCutType = "Countersink"
hole4.setExpression("HoleCutDiameter", "Params.hole4_csink_diameter")
hole4.HoleCutCountersinkAngle = 90
hole4.Reversed = True

# Sketch on XY plane
sketch18 = body.newObject("Sketcher::SketchObject", "Sketch017")
sketch18.AttachmentSupport = (doc.getObject("XY_Plane"), [""])
sketch18.MapMode = "FlatFace"
sketch18.addGeometry(Part.Circle(Vector(79.5, 35, 0), Vector(0, 0, 1), 1.5), False)
sketch18.addConstraint([
    Sketcher.Constraint("Diameter", 0, Q("3 mm")),
    Sketcher.Constraint("DistanceY", -1, 1, 0, 3, Q("35 mm")),
    Sketcher.Constraint("DistanceX", -1, 1, 0, 3, Q("79.5 mm")),
])
sketch18.setExpression("Constraints[0]", "Params.sketch18_diameter")
pocket10 = body.newObject("PartDesign::Pocket", "Pocket009")
pocket10.Profile = sketch18
pocket10.Type = "UpToFirst"
pocket10.Reversed = True

# Sketch on XY plane
sketch19 = body.newObject("Sketcher::SketchObject", "Sketch018")
sketch19.AttachmentSupport = (doc.getObject("XY_Plane"), [""])
sketch19.MapMode = "FlatFace"
sketch19.addGeometry(Part.Circle(Vector(110.2, 17.2, 0), Vector(0, 0, 1), 1.5), False)
sketch19.addConstraint([
    Sketcher.Constraint("Diameter", 0, Q("3 mm")),
    Sketcher.Constraint("DistanceX", -1, 1, 0, 3, Q("110.25 mm")),
    Sketcher.Constraint("DistanceY", -1, 1, 0, 3, Q("17.246479 mm")),
])
sketch19.setExpression("Constraints[0]", "Params.sketch19_diameter")
pocket11 = body.newObject("PartDesign::Pocket", "Pocket010")
pocket11.Profile = sketch19
pocket11.Type = "UpToFirst"
pocket11.Reversed = True

# Sketch on XY plane
sketch20 = body.newObject("Sketcher::SketchObject", "Sketch019")
sketch20.AttachmentSupport = (doc.getObject("XY_Plane"), [""])
sketch20.MapMode = "FlatFace"
sketch20.addGeometry(Part.Circle(Vector(110.2, 52.8, 0), Vector(0, 0, 1), 1.5), False)
sketch20.addConstraint([
    Sketcher.Constraint("Diameter", 0, Q("3 mm")),
    Sketcher.Constraint("DistanceX", -1, 1, 0, 3, Q("110.25 mm")),
    Sketcher.Constraint("DistanceY", -1, 1, 0, 3, Q("52.753521 mm")),
])
sketch20.setExpression("Constraints[0]", "Params.sketch20_diameter")
pocket12 = body.newObject("PartDesign::Pocket", "Pocket011")
pocket12.Profile = sketch20
pocket12.Type = "UpToFirst"
pocket12.Reversed = True

# Sketch on XY plane
sketch21 = body.newObject("Sketcher::SketchObject", "Sketch020")
sketch21.AttachmentSupport = (doc.getObject("XY_Plane"), [""])
sketch21.MapMode = "FlatFace"
sketch21.addGeometry(Part.Circle(Vector(44, 0, 0), Vector(0, 0, 1), 1.7), False)
sketch21.addConstraint([
    Sketcher.Constraint("PointOnObject", 0, 3, -1),
    Sketcher.Constraint("Diameter", 0, Q("3.4 mm")),
    Sketcher.Constraint("DistanceX", -1, 1, 0, 3, Q("44 mm")),
])
sketch21.setExpression("Constraints[1]", "Params.sketch21_diameter")
doc.recompute()
hole5 = body.newObject("PartDesign::Hole", "Hole004")
hole5.Profile = sketch21
hole5.ThreadType = "None"
hole5.setExpression("Diameter", "Params.hole5_diameter")
hole5.DepthType = "Dimension"
hole5.setExpression("Depth", "Params.hole5_depth")
hole5.DrillPoint = "Angled"
hole5.DrillPointAngle = 118
hole5.HoleCutType = "Countersink"
hole5.setExpression("HoleCutDiameter", "Params.hole5_csink_diameter")
hole5.HoleCutCountersinkAngle = 90
hole5.Reversed = True

doc.recompute()
